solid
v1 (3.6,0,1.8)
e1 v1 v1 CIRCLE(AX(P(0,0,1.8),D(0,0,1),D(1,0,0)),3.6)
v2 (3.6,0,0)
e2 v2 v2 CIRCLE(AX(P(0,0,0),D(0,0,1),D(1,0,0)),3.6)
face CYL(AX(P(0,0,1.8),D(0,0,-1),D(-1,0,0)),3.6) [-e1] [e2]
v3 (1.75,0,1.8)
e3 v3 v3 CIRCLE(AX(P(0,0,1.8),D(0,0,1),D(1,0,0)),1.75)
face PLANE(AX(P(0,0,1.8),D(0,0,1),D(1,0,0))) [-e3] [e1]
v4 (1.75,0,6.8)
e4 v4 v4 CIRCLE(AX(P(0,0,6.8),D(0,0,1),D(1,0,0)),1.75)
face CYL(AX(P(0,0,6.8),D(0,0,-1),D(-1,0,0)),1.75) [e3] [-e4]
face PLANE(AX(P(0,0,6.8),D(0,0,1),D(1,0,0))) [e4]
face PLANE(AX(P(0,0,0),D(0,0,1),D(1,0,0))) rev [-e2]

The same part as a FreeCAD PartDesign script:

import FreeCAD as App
import Part
import Sketcher
from FreeCAD import Vector
Q = App.Units.Quantity

doc = App.newDocument("Part")
body = doc.addObject("PartDesign::Body", "Body")

# Sketch on XY plane
sketch1 = body.newObject("Sketcher::SketchObject", "Sketch")
sketch1.AttachmentSupport = (doc.getObject("XY_Plane"), [""])
sketch1.MapMode = "FlatFace"
sketch1.addGeometry(Part.Circle(Vector(0, 0, 0), Vector(0, 0, 1), 3.6), False)
sketch1.addConstraint([
    Sketcher.Constraint("Coincident", 0, 3, -1, 1),
    Sketcher.Constraint("Diameter", 0, Q("7.2 mm")),
])
pad1 = body.newObject("PartDesign::Pad", "Pad")
pad1.Profile = sketch1
pad1.Length = 1.8

# Sketch on XY plane
sketch2 = body.newObject("Sketcher::SketchObject", "Sketch001")
sketch2.AttachmentSupport = (doc.getObject("XY_Plane"), [""])
sketch2.MapMode = "FlatFace"
sketch2.AttachmentOffset = App.Placement(Vector(0, 0, 1.8), App.Rotation())
sketch2.addGeometry(Part.Circle(Vector(0, 0, 0), Vector(0, 0, 1), 1.8), False)
sketch2.addConstraint([
    Sketcher.Constraint("Coincident", 0, 3, -1, 1),
    Sketcher.Constraint("Diameter", 0, Q("3.5 mm")),
])
pad2 = body.newObject("PartDesign::Pad", "Pad001")
pad2.Profile = sketch2
pad2.Length = 5

doc.recompute()
